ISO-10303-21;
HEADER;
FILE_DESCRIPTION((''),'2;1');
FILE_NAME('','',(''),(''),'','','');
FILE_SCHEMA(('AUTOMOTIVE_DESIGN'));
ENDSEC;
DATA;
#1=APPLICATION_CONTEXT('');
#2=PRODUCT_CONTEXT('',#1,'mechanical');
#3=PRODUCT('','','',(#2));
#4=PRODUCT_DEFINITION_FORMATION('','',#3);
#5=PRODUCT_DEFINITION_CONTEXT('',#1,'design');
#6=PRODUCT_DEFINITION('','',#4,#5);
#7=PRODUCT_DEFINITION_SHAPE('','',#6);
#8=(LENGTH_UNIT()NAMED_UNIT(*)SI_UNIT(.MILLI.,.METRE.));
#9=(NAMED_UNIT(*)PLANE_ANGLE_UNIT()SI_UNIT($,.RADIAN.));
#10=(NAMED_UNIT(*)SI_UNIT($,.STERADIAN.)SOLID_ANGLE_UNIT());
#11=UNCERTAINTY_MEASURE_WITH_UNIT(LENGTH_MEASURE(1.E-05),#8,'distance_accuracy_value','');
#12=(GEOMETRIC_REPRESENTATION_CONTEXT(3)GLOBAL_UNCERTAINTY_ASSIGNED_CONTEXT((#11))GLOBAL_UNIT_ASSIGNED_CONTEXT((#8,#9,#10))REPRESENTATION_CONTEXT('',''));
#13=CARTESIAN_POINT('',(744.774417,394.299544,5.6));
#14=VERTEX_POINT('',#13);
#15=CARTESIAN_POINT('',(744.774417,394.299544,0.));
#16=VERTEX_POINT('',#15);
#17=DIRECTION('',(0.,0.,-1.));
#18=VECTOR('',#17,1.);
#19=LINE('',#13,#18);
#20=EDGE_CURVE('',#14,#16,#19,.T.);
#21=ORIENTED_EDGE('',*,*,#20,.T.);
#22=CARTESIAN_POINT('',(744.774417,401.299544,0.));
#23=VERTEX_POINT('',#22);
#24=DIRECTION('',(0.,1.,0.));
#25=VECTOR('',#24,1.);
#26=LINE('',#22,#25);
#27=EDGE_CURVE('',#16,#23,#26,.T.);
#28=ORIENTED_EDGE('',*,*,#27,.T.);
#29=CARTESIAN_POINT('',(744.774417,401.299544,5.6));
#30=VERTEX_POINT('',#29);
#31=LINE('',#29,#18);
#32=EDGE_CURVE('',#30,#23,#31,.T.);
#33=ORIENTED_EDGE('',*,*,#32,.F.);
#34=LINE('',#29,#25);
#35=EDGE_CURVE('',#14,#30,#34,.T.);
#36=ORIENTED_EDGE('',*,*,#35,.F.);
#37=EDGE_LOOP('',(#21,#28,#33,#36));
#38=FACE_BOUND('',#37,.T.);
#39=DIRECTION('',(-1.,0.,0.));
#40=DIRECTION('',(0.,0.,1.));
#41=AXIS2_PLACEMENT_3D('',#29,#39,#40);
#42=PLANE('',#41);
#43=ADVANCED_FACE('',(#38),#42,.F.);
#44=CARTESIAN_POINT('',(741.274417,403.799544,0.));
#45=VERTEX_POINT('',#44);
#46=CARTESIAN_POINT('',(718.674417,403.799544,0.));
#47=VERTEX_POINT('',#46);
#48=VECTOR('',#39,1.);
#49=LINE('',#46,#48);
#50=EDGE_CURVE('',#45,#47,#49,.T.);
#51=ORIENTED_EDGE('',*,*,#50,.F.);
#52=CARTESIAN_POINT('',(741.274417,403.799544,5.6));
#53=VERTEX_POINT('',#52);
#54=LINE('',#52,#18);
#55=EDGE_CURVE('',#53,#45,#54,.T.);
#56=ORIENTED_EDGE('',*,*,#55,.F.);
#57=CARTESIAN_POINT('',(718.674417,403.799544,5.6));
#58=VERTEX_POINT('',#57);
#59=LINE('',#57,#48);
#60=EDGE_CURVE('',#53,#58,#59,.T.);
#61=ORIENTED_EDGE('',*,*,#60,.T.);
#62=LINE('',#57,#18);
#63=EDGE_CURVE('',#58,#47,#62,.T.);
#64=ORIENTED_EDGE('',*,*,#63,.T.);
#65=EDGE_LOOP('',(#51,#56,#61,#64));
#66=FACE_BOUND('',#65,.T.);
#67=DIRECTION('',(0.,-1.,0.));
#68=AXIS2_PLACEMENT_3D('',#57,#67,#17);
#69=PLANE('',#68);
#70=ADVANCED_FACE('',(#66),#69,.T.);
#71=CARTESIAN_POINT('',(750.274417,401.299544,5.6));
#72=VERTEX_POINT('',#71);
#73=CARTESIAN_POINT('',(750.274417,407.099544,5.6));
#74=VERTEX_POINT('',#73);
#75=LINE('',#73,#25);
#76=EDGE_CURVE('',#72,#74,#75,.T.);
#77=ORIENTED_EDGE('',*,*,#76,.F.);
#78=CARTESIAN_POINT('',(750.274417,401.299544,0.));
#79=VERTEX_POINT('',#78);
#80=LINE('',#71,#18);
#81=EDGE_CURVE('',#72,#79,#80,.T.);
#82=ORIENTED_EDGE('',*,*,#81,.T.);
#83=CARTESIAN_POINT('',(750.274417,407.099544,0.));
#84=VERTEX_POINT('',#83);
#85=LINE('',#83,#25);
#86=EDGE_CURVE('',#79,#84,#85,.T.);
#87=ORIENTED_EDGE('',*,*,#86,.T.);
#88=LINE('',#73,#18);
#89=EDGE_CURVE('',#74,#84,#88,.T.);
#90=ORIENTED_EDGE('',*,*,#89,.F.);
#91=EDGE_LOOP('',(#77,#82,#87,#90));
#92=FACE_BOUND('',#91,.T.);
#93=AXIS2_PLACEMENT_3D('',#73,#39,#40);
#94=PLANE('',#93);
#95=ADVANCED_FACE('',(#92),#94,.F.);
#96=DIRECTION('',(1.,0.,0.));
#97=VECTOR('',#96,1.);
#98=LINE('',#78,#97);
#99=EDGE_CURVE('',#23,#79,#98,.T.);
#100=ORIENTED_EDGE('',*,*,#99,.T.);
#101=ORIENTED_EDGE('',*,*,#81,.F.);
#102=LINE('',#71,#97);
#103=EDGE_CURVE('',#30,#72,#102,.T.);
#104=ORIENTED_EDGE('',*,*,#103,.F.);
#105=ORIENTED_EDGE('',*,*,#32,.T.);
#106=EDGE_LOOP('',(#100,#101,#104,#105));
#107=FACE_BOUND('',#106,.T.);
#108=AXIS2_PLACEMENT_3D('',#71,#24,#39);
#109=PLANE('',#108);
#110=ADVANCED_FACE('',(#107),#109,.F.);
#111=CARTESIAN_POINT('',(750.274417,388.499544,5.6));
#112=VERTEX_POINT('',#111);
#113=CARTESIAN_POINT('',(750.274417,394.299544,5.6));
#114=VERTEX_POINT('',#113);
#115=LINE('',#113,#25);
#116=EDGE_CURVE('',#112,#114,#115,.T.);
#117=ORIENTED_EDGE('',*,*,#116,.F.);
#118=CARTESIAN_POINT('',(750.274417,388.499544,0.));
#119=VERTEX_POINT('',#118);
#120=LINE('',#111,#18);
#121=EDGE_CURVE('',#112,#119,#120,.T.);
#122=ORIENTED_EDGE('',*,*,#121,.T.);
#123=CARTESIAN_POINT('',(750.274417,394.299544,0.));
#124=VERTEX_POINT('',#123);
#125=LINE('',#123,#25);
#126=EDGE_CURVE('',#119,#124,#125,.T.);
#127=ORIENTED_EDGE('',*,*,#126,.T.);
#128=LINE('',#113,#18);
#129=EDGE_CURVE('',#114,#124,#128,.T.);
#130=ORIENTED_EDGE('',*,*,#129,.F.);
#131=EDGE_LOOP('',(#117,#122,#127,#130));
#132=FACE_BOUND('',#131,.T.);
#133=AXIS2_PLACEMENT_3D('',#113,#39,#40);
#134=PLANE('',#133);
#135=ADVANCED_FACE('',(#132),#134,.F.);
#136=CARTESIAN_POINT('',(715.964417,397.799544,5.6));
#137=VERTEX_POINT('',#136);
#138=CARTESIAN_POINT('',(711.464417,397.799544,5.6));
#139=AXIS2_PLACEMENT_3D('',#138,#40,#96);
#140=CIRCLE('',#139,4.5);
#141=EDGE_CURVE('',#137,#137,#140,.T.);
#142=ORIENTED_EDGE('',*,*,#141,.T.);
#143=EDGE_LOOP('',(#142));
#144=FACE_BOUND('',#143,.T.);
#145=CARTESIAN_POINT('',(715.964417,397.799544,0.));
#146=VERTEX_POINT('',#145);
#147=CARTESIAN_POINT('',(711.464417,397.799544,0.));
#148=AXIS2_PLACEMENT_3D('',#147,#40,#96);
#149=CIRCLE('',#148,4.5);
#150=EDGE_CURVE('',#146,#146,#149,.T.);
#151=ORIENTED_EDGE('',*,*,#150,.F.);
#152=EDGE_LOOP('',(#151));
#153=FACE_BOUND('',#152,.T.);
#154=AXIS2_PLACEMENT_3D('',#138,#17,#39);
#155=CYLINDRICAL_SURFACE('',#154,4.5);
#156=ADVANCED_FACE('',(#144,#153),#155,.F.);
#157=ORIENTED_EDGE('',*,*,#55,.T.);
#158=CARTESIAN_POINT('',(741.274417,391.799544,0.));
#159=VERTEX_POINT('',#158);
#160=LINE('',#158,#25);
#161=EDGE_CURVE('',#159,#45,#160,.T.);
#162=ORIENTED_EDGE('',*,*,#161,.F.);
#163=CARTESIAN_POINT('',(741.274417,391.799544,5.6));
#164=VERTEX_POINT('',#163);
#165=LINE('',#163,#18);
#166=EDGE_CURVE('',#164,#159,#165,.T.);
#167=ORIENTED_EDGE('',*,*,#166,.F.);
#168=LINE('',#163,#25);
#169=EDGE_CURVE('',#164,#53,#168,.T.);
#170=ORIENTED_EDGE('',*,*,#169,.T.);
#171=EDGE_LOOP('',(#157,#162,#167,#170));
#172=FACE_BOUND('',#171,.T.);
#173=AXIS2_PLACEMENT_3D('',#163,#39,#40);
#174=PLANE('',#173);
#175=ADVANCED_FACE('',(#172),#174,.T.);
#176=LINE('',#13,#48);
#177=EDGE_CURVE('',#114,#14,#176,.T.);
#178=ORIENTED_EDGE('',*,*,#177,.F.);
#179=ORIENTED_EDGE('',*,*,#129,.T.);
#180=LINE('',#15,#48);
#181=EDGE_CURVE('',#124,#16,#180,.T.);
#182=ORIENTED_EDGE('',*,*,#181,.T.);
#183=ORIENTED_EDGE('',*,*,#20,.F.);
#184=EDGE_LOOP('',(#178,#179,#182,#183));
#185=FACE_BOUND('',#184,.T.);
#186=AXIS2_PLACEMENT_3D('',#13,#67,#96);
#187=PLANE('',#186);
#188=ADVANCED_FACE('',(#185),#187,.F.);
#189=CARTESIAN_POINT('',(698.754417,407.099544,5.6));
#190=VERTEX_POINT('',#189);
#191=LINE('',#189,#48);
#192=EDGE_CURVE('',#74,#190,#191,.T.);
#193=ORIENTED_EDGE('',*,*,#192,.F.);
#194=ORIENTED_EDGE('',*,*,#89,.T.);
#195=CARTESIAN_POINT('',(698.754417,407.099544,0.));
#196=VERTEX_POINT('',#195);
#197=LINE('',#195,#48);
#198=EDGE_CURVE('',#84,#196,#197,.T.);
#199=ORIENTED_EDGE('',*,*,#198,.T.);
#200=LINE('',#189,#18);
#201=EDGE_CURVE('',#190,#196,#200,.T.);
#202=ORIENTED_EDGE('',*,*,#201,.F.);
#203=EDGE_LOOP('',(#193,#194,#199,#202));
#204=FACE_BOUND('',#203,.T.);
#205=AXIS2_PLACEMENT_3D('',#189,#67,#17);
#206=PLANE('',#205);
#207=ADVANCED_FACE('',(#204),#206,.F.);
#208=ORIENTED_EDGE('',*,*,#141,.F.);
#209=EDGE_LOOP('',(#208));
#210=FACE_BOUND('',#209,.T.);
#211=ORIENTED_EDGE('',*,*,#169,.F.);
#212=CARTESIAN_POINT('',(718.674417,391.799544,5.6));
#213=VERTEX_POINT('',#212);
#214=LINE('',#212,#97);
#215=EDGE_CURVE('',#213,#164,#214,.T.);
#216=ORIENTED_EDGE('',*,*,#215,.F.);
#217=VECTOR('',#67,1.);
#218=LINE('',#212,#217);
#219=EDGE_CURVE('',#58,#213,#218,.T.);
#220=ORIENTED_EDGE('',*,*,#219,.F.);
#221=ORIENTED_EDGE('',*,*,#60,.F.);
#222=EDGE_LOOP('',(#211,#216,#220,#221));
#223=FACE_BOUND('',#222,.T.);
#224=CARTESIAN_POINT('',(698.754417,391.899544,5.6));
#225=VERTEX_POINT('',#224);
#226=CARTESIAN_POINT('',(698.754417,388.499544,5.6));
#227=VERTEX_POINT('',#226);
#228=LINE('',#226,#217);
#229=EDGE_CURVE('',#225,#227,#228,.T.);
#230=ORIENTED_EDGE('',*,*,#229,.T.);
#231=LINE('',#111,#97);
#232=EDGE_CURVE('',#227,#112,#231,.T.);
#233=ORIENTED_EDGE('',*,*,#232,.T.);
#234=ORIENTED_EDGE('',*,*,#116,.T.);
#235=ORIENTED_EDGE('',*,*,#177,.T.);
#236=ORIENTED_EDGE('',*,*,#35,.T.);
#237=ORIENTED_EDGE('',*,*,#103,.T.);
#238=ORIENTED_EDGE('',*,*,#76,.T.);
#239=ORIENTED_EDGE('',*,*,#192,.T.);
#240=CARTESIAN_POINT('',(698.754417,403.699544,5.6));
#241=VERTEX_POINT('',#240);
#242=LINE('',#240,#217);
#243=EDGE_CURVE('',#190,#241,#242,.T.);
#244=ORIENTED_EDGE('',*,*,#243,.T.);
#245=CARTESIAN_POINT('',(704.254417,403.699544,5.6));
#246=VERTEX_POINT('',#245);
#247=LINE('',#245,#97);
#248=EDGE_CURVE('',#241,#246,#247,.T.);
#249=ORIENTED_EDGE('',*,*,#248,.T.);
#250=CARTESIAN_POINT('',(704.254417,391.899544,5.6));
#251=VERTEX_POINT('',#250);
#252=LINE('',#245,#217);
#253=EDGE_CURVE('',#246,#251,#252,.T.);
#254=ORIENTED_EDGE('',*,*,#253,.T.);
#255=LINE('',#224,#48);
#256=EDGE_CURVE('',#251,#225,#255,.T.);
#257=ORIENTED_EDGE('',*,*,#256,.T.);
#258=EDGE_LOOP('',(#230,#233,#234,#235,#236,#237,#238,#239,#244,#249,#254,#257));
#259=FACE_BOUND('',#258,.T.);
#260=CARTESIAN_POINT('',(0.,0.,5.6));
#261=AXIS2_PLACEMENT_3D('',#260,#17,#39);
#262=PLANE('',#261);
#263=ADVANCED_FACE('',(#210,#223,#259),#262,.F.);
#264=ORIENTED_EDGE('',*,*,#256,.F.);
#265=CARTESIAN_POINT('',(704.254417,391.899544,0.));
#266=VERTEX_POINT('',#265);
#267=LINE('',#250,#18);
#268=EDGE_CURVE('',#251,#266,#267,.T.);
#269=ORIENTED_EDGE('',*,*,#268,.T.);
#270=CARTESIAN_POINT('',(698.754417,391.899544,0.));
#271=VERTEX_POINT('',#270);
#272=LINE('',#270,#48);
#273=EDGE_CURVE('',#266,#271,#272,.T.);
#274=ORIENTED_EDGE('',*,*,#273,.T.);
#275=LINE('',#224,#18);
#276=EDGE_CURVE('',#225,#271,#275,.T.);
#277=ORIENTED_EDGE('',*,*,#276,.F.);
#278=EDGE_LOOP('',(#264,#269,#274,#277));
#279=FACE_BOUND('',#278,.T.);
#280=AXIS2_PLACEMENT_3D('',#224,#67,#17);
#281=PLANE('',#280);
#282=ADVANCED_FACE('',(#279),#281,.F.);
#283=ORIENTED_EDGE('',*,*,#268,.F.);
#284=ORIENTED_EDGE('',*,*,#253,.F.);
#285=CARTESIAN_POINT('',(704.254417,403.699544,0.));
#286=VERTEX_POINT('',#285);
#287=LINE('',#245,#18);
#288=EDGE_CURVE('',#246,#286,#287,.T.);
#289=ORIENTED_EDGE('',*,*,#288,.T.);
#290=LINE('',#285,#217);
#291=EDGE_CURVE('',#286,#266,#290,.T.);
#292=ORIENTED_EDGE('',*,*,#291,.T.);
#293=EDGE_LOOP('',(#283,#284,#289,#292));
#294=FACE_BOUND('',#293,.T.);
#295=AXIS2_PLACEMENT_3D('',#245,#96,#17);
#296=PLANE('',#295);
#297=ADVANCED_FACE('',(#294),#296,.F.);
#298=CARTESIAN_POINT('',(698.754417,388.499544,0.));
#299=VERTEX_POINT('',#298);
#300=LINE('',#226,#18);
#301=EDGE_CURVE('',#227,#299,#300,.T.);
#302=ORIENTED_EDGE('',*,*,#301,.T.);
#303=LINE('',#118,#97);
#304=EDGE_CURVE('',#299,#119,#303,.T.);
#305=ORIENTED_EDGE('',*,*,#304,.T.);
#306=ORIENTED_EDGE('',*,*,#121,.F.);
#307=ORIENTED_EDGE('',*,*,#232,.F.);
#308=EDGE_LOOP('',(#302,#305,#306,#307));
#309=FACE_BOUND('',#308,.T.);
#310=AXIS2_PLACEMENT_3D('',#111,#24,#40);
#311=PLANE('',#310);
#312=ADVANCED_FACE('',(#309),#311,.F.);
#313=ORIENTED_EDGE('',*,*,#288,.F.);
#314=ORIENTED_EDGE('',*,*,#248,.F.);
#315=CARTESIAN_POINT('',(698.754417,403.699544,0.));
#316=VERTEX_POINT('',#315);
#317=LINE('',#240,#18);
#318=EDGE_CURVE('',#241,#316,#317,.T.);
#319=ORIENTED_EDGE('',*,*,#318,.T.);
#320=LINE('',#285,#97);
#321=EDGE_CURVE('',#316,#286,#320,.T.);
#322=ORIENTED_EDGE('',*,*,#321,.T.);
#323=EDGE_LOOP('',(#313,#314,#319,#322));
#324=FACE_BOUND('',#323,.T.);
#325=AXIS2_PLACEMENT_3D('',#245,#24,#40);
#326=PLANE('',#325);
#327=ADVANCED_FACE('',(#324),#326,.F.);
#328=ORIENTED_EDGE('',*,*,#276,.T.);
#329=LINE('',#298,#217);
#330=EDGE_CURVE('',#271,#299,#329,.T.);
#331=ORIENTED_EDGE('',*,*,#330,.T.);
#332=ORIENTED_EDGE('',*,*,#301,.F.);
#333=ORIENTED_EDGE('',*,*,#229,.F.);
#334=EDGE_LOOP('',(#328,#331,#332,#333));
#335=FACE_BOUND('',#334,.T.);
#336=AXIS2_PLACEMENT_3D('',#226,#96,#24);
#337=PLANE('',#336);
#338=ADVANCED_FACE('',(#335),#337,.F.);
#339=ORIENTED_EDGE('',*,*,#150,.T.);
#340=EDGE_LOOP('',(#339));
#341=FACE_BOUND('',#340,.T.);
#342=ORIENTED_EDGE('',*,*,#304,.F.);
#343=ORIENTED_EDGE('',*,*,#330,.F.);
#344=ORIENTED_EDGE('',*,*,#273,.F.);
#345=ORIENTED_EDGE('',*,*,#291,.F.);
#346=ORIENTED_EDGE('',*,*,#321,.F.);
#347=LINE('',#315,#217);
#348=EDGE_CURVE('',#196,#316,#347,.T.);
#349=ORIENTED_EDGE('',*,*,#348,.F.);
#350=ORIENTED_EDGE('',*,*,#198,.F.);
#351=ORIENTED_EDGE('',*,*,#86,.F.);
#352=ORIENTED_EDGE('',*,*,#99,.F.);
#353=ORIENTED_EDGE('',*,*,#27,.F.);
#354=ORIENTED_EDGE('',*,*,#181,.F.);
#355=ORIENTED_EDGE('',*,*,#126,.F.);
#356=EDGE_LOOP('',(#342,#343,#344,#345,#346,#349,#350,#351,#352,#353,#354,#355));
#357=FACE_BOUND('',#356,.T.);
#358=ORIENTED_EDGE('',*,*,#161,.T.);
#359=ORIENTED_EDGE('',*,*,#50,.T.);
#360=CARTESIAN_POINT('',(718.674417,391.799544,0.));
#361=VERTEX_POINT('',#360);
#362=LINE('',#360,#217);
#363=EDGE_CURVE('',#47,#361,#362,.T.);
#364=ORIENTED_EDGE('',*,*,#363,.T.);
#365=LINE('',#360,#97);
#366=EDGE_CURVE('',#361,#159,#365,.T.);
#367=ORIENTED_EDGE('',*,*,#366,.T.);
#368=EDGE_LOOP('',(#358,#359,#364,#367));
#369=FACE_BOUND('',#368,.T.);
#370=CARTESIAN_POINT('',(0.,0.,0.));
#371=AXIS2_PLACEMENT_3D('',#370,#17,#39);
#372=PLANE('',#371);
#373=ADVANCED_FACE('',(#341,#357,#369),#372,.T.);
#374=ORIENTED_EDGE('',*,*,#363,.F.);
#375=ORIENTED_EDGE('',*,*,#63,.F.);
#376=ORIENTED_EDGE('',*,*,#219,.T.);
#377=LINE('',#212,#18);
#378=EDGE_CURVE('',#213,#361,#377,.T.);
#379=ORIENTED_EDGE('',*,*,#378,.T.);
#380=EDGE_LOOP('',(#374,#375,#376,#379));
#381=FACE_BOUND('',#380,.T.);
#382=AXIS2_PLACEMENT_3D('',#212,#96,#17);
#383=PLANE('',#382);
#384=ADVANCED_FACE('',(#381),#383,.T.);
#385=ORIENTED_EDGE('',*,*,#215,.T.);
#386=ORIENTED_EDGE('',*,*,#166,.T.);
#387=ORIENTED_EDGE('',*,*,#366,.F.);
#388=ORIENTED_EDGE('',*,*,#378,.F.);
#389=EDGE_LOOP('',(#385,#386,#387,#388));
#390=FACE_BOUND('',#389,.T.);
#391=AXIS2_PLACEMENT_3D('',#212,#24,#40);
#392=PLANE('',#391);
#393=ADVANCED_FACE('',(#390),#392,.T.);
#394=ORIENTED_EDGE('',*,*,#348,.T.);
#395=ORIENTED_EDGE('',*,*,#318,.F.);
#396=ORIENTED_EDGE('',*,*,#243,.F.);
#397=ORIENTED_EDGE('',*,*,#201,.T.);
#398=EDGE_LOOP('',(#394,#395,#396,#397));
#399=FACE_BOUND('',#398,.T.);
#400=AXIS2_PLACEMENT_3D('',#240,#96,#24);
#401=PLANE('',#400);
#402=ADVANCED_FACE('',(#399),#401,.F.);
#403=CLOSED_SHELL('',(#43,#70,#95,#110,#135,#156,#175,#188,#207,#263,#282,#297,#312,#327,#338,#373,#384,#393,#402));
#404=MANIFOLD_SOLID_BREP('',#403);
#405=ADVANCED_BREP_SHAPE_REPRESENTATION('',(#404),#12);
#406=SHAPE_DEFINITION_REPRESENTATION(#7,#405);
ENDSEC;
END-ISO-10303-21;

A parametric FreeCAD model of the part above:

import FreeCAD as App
import Part
import Sketcher
Q = App.Units.Quantity


def add_polygon(sketch, points):
    """Adds a closed chain of lines whose ends are joined by coincident constraints."""
    first, n = sketch.GeometryCount, len(points)
    for a, b in zip(points, points[1:] + points[:1]):
        sketch.addGeometry(Part.LineSegment(App.Vector(*a, 0), App.Vector(*b, 0)), False)
    for i in range(n):
        sketch.addConstraint(Sketcher.Constraint("Coincident", first + i, 2, first + (i + 1) % n, 1))

doc = App.newDocument("Part")
body = doc.addObject("PartDesign::Body", "Body")

sketch1 = body.newObject("Sketcher::SketchObject", "Sketch")
sketch1.AttachmentSupport = (doc.getObject("XY_Plane"), [""])
sketch1.MapMode = "FlatFace"
add_polygon(sketch1, [(704.3, 403.7), (704.3, 391.9), (698.8, 391.9), (698.8, 388.5), (750.3, 388.5), (750.3, 394.3), (744.8, 394.3), (744.8, 401.3), (750.3, 401.3), (750.3, 407.1), (698.8, 407.1), (698.8, 403.7)])
sketch1.addGeometry(Part.Circle(App.Vector(711.5, 397.8, 0), App.Vector(0, 0, 1), 4.5), False)
add_polygon(sketch1, [(741.3, 391.8), (718.7, 391.8), (718.7, 403.8), (741.3, 403.8)])
sketch1.addConstraint([
    Sketcher.Constraint("Vertical", 0),
    Sketcher.Constraint("Horizontal", 1),
    Sketcher.Constraint("Vertical", 2),
    Sketcher.Constraint("Horizontal", 3),
    Sketcher.Constraint("Vertical", 4),
    Sketcher.Constraint("Horizontal", 5),
    Sketcher.Constraint("Vertical", 6),
    Sketcher.Constraint("Horizontal", 7),
    Sketcher.Constraint("Vertical", 8),
    Sketcher.Constraint("Horizontal", 9),
    Sketcher.Constraint("Vertical", 10),
    Sketcher.Constraint("Horizontal", 11),
    Sketcher.Constraint("Horizontal", 13),
    Sketcher.Constraint("Vertical", 14),
    Sketcher.Constraint("Horizontal", 15),
    Sketcher.Constraint("Vertical", 16),
    Sketcher.Constraint("Vertical", 4, 2, 7, 2),
    Sketcher.Constraint("Vertical", 2, 2, 9, 2),
    Sketcher.Constraint("Equal", 1, 5),
    Sketcher.Constraint("Equal", 4, 8),
    Sketcher.Constraint("Equal", 2, 10),
    Sketcher.Constraint("Diameter", 12, Q("9 mm")),
    Sketcher.Constraint("DistanceY", 6, 1, 6, 2, Q("7 mm")),
    Sketcher.Constraint("DistanceY", 14, 1, 14, 2, Q("12 mm")),
    Sketcher.Constraint("DistanceX", 1, 2, 1, 1, Q("5.5 mm")),
    Sketcher.Constraint("DistanceX", 13, 2, 13, 1, Q("22.6 mm")),
    Sketcher.Constraint("DistanceY", 0, 2, 0, 1, Q("11.8 mm")),
    Sketcher.Constraint("DistanceY", 2, 2, 2, 1, Q("3.4 mm")),
    Sketcher.Constraint("DistanceY", 13, 2, 12, 3, Q("6 mm")),
    Sketcher.Constraint("DistanceX", 15, 2, 7, 2, Q("9 mm")),
    Sketcher.Constraint("DistanceX", 3, 1, 3, 2, Q("51.52 mm")),
    Sketcher.Constraint("DistanceY", 0, 2, 12, 3, Q("5.9 mm")),
    Sketcher.Constraint("DistanceX", 0, 2, 12, 3, Q("7.21 mm")),
    Sketcher.Constraint("DistanceX", -1, 1, 12, 3, Q("711.464417 mm")),
    Sketcher.Constraint("DistanceY", -1, 1, 12, 3, Q("397.799544 mm")),
])
pad1 = body.newObject("PartDesign::Pad", "Pad")
pad1.Profile = sketch1
pad1.Length = 5.6

doc.recompute()
